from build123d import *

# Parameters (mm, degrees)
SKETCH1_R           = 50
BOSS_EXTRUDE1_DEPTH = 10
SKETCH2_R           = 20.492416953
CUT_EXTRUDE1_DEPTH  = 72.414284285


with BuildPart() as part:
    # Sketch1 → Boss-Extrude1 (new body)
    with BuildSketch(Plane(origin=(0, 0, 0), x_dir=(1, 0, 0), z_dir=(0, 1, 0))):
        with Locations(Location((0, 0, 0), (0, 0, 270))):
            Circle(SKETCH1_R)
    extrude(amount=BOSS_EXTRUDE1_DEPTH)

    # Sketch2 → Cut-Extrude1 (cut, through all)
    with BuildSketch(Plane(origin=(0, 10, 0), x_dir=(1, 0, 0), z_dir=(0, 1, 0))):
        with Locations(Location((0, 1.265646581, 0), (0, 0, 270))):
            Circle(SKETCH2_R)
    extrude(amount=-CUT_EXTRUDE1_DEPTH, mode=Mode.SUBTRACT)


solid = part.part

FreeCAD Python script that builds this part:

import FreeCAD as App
import Part
import Sketcher
from FreeCAD import Vector
Q = App.Units.Quantity

doc = App.newDocument("Part")
params = doc.addObject("Spreadsheet::Sheet", "Params")
for row, (alias, value) in enumerate([
    ("sketch1_diameter", "100 mm"),
    ("pad1_length", "10 mm"),
], start=1):
    params.set(f"A{row}", alias)
    params.set(f"B{row}", "=" + value)
    params.setAlias(f"B{row}", alias)

body = doc.addObject("PartDesign::Body", "Body")

# Sketch on XZ plane
sketch1 = body.newObject("Sketcher::SketchObject", "Sketch")
sketch1.AttachmentSupport = (doc.getObject("XZ_Plane"), [""])
sketch1.MapMode = "FlatFace"
sketch1.addGeometry(Part.Circle(Vector(0, 0, 0), Vector(0, 0, 1), 50), False)
sketch1.addConstraint([
    Sketcher.Constraint("Coincident", 0, 3, -1, 1),
    Sketcher.Constraint("Diameter", 0, Q("100 mm")),
])
sketch1.setExpression("Constraints[1]", "Params.sketch1_diameter")
pad1 = body.newObject("PartDesign::Pad", "Pad")
pad1.Profile = sketch1
pad1.setExpression("Length", "Params.pad1_length")
pad1.Reversed = True

# Sketch on XZ plane
sketch2 = body.newObject("Sketcher::SketchObject", "Sketch001")
sketch2.AttachmentSupport = (doc.getObject("XZ_Plane"), [""])
sketch2.MapMode = "FlatFace"
sketch2.AttachmentOffset = App.Placement(Vector(0, 0, -10), App.Rotation())
sketch2.addGeometry(Part.Circle(Vector(0, -1, 0), Vector(0, 0, 1), 20), False)
sketch2.addConstraint([
    Sketcher.Constraint("PointOnObject", 0, 3, -2),
    Sketcher.Constraint("Diameter", 0, Q("40.984834 mm")),
    Sketcher.Constraint("DistanceY", 0, 3, -1, 1, Q("1.265647 mm")),
])
pocket1 = body.newObject("PartDesign::Pocket", "Pocket")
pocket1.Profile = sketch2
pocket1.Type = "ThroughAll"
pocket1.Reversed = True

doc.recompute()
